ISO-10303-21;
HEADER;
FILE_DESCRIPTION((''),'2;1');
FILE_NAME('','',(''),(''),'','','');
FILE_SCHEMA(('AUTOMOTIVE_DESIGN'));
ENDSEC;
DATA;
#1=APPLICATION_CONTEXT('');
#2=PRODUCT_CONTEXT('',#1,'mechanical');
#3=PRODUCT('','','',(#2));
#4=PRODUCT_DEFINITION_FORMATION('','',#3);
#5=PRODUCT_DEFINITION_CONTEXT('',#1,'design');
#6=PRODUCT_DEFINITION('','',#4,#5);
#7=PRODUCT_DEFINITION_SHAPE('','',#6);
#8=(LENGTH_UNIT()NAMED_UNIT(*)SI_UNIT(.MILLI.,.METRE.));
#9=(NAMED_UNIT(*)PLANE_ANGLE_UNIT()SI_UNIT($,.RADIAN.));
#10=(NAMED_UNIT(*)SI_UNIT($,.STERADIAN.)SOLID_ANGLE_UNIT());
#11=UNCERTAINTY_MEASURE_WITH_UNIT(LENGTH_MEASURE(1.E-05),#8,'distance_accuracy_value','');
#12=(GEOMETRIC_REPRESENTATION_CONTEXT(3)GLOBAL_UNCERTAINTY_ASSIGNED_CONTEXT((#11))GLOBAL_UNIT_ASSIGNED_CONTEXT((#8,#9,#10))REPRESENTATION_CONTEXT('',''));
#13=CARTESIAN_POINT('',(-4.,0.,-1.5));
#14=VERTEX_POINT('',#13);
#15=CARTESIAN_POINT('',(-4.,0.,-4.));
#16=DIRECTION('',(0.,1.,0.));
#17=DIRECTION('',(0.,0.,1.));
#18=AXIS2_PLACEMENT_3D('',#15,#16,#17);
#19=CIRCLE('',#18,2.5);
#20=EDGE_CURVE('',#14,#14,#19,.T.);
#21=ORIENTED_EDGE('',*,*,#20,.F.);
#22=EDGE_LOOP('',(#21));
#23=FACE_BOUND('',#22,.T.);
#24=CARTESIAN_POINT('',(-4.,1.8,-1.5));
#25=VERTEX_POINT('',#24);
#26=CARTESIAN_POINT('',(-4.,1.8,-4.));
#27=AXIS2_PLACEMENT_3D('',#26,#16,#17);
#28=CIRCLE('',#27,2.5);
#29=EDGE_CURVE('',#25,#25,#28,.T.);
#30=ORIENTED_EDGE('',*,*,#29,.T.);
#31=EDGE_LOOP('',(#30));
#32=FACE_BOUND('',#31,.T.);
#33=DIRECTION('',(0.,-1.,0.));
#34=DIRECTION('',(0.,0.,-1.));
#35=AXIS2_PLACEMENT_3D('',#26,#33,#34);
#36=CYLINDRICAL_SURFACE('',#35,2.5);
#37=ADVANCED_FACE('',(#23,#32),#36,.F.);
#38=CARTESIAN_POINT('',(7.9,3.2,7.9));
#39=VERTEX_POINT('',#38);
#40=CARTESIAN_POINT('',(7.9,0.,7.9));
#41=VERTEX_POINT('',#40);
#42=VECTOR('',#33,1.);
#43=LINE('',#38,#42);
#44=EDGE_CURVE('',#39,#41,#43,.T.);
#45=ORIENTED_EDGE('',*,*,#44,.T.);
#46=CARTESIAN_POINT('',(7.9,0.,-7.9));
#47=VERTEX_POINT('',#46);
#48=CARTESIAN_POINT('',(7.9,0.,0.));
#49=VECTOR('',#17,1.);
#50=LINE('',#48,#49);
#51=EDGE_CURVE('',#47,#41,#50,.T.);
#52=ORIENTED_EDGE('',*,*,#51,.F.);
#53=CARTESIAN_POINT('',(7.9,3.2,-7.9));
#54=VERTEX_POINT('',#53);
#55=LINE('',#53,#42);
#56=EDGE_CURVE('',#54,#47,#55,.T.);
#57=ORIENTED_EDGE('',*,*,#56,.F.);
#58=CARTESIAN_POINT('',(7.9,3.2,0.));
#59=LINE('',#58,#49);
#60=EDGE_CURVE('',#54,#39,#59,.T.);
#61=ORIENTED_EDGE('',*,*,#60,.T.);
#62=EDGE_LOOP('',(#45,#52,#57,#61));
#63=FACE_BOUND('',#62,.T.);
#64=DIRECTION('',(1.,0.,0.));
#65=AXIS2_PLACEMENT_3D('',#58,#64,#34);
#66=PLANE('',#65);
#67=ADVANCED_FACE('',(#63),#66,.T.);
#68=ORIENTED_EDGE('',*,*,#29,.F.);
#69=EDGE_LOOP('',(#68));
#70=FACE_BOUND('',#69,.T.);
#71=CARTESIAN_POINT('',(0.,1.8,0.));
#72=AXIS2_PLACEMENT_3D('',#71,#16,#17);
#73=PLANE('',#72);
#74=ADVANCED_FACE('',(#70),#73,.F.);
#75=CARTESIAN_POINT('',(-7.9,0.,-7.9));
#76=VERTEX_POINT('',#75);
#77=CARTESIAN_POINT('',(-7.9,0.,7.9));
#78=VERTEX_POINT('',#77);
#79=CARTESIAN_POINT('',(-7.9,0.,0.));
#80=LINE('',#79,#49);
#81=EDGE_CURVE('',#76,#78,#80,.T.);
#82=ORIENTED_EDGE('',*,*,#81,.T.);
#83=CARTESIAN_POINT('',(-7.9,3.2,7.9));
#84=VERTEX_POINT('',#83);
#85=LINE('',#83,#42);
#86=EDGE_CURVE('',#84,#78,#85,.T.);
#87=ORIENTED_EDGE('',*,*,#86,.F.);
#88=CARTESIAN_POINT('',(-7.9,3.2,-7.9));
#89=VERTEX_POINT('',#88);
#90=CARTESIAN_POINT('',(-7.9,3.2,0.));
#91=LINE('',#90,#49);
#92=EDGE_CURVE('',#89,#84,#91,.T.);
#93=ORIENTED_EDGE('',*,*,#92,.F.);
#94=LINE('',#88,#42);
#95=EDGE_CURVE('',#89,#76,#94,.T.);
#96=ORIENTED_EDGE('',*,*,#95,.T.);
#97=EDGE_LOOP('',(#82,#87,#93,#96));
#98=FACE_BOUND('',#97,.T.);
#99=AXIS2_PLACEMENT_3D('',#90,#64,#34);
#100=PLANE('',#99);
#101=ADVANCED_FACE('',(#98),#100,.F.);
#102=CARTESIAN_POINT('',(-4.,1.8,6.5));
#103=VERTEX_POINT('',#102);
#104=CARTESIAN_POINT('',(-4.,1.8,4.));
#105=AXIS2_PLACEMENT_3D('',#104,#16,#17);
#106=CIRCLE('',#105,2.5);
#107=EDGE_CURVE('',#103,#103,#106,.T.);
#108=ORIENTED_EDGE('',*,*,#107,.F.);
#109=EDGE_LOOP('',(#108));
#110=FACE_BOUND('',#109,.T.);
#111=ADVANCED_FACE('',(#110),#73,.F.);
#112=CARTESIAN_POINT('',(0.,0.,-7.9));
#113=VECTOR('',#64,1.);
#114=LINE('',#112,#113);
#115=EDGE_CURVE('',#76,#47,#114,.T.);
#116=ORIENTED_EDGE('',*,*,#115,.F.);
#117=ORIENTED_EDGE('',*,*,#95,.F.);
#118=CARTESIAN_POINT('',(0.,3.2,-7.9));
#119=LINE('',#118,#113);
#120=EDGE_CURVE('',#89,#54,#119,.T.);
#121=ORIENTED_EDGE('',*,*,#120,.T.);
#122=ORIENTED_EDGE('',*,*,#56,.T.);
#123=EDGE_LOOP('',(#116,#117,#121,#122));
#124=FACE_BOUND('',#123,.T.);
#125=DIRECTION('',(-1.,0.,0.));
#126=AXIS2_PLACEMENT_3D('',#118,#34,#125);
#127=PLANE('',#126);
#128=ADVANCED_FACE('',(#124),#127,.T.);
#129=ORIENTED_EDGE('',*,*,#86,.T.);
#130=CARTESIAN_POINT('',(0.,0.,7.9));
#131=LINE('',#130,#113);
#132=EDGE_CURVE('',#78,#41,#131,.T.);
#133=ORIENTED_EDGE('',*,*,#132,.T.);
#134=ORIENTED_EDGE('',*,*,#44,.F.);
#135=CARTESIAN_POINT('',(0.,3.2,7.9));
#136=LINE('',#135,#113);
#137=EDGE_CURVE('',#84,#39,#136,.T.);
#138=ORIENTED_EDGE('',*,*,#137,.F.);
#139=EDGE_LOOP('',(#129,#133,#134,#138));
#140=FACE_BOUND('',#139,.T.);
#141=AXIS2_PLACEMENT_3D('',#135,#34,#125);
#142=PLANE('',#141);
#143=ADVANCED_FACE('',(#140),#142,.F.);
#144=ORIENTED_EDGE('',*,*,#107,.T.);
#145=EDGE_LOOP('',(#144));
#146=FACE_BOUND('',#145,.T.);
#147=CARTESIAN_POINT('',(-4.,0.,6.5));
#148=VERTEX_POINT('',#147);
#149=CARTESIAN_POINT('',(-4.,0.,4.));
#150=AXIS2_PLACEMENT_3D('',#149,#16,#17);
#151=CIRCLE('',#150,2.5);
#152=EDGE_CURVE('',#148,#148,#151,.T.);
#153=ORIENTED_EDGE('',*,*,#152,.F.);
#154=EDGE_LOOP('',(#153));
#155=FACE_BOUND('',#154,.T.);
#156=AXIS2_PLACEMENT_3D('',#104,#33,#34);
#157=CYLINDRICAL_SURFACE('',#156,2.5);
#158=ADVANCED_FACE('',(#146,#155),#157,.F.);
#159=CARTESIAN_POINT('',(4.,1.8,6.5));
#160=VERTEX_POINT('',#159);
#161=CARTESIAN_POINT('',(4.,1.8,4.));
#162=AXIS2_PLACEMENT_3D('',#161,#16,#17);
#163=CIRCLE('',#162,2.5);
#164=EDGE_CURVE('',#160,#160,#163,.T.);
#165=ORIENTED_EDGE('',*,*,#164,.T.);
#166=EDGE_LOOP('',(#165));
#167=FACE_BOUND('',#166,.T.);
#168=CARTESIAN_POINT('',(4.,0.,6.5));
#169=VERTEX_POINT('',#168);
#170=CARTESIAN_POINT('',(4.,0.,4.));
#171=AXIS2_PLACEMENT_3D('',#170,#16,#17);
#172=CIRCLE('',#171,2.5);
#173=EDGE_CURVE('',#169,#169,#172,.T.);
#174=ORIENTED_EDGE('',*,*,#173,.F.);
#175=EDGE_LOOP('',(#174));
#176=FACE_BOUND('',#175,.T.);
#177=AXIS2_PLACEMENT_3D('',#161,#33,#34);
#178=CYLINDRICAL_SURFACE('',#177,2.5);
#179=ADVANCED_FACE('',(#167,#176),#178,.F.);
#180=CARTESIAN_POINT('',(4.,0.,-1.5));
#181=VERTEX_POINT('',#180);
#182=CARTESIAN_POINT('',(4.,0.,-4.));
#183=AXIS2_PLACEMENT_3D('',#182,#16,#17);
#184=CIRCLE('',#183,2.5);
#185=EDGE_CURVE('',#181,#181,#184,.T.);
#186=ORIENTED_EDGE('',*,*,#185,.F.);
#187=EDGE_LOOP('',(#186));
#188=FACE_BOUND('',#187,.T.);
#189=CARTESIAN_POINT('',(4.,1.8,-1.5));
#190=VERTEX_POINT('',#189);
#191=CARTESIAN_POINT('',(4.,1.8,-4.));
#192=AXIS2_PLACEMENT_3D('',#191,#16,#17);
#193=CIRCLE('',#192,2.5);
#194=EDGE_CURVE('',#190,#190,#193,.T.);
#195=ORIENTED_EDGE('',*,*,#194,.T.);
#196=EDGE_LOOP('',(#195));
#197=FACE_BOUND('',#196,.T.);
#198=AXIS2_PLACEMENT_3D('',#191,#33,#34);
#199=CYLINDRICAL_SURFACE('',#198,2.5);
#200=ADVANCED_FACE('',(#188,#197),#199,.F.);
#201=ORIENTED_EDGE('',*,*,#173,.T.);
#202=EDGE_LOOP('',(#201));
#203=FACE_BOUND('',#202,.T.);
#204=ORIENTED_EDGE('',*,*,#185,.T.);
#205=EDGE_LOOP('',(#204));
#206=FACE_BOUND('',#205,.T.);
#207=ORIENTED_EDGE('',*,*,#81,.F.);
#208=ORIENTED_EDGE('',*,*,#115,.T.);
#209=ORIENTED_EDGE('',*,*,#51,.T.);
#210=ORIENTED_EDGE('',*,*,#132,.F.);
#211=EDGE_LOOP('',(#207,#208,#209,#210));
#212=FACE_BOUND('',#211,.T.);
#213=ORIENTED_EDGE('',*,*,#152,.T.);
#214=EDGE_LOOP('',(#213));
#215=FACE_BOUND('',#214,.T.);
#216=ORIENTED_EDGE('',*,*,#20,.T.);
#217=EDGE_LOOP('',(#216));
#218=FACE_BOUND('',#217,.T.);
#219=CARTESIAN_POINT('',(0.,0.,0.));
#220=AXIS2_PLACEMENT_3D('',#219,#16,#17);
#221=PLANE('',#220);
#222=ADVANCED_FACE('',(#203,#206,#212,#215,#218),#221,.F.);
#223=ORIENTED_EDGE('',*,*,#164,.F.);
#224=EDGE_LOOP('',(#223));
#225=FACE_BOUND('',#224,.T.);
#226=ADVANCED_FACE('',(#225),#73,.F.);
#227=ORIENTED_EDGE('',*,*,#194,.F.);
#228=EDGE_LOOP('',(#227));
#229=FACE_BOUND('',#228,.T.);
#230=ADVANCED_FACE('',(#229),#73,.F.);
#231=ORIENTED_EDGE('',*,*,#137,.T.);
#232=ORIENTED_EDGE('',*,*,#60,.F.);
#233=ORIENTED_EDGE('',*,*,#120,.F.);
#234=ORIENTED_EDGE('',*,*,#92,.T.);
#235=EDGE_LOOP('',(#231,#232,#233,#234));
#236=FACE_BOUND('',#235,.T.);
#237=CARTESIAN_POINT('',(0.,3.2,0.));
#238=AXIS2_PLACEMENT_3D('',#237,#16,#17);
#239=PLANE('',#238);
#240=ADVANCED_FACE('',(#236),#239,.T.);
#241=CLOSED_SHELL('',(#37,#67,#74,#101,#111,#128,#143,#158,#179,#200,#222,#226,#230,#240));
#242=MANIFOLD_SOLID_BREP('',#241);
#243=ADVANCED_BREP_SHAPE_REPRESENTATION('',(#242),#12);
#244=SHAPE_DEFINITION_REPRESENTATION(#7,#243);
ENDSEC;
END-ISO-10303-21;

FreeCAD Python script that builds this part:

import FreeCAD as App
import Part
import Sketcher
from FreeCAD import Vector
Q = App.Units.Quantity


def add_polygon(sketch, points):
    """Adds a closed chain of lines whose ends are joined by coincident constraints."""
    first, n = sketch.GeometryCount, len(points)
    for a, b in zip(points, points[1:] + points[:1]):
        sketch.addGeometry(Part.LineSegment(App.Vector(*a, 0), App.Vector(*b, 0)), False)
    for i in range(n):
        sketch.addConstraint(Sketcher.Constraint("Coincident", first + i, 2, first + (i + 1) % n, 1))

doc = App.newDocument("Part")
body = doc.addObject("PartDesign::Body", "Body")

# Sketch on XZ plane
sketch1 = body.newObject("Sketcher::SketchObject", "Sketch")
sketch1.AttachmentSupport = (doc.getObject("XZ_Plane"), [""])
sketch1.MapMode = "FlatFace"
add_polygon(sketch1, [(-7.9, -7.9), (-7.9, 7.9), (7.9, 7.9), (7.9, -7.9)])  # lines 0-3
sketch1.addConstraint([
    Sketcher.Constraint("Vertical", 0),
    Sketcher.Constraint("Horizontal", 1),
    Sketcher.Constraint("Vertical", 2),
    Sketcher.Constraint("Horizontal", 3),
    Sketcher.Constraint("Symmetric", 0, 2, 2, 2, -1, 1),
    Sketcher.Constraint("Equal", 3, 0),
    Sketcher.Constraint("DistanceX", 1, 1, 1, 2, Q("15.8 mm")),
])
pad1 = body.newObject("PartDesign::Pad", "Pad")
pad1.Profile = sketch1
pad1.Length = 3.2
pad1.Reversed = True

# Sketch on XZ plane
sketch2 = body.newObject("Sketcher::SketchObject", "Sketch001")
sketch2.AttachmentSupport = (doc.getObject("XZ_Plane"), [""])
sketch2.MapMode = "FlatFace"
sketch2.addGeometry([
    Part.Circle(Vector(-4, 4, 0), Vector(0, 0, 1), 2.5),
    Part.Circle(Vector(4, 4, 0), Vector(0, 0, 1), 2.5),
    Part.Circle(Vector(4, -4, 0), Vector(0, 0, 1), 2.5),
    Part.Circle(Vector(-4, -4, 0), Vector(0, 0, 1), 2.5),
], False)
sketch2.addConstraint([
    Sketcher.Constraint("Equal", 0, 1),
    Sketcher.Constraint("Equal", 1, 2),
    Sketcher.Constraint("Equal", 2, 3),
    Sketcher.Constraint("Symmetric", 0, 3, 2, 3, -1, 1),
    Sketcher.Constraint("Symmetric", 1, 3, 3, 3, -1, 1),
    Sketcher.Constraint("Symmetric", 0, 3, 1, 3, -2),
    Sketcher.Constraint("Diameter", 0, Q("5 mm")),
    Sketcher.Constraint("DistanceX", 0, 3, -1, 1, Q("4 mm")),
    Sketcher.Constraint("DistanceY", -1, 1, 0, 3, Q("4 mm")),
])
pocket1 = body.newObject("PartDesign::Pocket", "Pocket")
pocket1.Profile = sketch2
pocket1.Length = 1.8

doc.recompute()
